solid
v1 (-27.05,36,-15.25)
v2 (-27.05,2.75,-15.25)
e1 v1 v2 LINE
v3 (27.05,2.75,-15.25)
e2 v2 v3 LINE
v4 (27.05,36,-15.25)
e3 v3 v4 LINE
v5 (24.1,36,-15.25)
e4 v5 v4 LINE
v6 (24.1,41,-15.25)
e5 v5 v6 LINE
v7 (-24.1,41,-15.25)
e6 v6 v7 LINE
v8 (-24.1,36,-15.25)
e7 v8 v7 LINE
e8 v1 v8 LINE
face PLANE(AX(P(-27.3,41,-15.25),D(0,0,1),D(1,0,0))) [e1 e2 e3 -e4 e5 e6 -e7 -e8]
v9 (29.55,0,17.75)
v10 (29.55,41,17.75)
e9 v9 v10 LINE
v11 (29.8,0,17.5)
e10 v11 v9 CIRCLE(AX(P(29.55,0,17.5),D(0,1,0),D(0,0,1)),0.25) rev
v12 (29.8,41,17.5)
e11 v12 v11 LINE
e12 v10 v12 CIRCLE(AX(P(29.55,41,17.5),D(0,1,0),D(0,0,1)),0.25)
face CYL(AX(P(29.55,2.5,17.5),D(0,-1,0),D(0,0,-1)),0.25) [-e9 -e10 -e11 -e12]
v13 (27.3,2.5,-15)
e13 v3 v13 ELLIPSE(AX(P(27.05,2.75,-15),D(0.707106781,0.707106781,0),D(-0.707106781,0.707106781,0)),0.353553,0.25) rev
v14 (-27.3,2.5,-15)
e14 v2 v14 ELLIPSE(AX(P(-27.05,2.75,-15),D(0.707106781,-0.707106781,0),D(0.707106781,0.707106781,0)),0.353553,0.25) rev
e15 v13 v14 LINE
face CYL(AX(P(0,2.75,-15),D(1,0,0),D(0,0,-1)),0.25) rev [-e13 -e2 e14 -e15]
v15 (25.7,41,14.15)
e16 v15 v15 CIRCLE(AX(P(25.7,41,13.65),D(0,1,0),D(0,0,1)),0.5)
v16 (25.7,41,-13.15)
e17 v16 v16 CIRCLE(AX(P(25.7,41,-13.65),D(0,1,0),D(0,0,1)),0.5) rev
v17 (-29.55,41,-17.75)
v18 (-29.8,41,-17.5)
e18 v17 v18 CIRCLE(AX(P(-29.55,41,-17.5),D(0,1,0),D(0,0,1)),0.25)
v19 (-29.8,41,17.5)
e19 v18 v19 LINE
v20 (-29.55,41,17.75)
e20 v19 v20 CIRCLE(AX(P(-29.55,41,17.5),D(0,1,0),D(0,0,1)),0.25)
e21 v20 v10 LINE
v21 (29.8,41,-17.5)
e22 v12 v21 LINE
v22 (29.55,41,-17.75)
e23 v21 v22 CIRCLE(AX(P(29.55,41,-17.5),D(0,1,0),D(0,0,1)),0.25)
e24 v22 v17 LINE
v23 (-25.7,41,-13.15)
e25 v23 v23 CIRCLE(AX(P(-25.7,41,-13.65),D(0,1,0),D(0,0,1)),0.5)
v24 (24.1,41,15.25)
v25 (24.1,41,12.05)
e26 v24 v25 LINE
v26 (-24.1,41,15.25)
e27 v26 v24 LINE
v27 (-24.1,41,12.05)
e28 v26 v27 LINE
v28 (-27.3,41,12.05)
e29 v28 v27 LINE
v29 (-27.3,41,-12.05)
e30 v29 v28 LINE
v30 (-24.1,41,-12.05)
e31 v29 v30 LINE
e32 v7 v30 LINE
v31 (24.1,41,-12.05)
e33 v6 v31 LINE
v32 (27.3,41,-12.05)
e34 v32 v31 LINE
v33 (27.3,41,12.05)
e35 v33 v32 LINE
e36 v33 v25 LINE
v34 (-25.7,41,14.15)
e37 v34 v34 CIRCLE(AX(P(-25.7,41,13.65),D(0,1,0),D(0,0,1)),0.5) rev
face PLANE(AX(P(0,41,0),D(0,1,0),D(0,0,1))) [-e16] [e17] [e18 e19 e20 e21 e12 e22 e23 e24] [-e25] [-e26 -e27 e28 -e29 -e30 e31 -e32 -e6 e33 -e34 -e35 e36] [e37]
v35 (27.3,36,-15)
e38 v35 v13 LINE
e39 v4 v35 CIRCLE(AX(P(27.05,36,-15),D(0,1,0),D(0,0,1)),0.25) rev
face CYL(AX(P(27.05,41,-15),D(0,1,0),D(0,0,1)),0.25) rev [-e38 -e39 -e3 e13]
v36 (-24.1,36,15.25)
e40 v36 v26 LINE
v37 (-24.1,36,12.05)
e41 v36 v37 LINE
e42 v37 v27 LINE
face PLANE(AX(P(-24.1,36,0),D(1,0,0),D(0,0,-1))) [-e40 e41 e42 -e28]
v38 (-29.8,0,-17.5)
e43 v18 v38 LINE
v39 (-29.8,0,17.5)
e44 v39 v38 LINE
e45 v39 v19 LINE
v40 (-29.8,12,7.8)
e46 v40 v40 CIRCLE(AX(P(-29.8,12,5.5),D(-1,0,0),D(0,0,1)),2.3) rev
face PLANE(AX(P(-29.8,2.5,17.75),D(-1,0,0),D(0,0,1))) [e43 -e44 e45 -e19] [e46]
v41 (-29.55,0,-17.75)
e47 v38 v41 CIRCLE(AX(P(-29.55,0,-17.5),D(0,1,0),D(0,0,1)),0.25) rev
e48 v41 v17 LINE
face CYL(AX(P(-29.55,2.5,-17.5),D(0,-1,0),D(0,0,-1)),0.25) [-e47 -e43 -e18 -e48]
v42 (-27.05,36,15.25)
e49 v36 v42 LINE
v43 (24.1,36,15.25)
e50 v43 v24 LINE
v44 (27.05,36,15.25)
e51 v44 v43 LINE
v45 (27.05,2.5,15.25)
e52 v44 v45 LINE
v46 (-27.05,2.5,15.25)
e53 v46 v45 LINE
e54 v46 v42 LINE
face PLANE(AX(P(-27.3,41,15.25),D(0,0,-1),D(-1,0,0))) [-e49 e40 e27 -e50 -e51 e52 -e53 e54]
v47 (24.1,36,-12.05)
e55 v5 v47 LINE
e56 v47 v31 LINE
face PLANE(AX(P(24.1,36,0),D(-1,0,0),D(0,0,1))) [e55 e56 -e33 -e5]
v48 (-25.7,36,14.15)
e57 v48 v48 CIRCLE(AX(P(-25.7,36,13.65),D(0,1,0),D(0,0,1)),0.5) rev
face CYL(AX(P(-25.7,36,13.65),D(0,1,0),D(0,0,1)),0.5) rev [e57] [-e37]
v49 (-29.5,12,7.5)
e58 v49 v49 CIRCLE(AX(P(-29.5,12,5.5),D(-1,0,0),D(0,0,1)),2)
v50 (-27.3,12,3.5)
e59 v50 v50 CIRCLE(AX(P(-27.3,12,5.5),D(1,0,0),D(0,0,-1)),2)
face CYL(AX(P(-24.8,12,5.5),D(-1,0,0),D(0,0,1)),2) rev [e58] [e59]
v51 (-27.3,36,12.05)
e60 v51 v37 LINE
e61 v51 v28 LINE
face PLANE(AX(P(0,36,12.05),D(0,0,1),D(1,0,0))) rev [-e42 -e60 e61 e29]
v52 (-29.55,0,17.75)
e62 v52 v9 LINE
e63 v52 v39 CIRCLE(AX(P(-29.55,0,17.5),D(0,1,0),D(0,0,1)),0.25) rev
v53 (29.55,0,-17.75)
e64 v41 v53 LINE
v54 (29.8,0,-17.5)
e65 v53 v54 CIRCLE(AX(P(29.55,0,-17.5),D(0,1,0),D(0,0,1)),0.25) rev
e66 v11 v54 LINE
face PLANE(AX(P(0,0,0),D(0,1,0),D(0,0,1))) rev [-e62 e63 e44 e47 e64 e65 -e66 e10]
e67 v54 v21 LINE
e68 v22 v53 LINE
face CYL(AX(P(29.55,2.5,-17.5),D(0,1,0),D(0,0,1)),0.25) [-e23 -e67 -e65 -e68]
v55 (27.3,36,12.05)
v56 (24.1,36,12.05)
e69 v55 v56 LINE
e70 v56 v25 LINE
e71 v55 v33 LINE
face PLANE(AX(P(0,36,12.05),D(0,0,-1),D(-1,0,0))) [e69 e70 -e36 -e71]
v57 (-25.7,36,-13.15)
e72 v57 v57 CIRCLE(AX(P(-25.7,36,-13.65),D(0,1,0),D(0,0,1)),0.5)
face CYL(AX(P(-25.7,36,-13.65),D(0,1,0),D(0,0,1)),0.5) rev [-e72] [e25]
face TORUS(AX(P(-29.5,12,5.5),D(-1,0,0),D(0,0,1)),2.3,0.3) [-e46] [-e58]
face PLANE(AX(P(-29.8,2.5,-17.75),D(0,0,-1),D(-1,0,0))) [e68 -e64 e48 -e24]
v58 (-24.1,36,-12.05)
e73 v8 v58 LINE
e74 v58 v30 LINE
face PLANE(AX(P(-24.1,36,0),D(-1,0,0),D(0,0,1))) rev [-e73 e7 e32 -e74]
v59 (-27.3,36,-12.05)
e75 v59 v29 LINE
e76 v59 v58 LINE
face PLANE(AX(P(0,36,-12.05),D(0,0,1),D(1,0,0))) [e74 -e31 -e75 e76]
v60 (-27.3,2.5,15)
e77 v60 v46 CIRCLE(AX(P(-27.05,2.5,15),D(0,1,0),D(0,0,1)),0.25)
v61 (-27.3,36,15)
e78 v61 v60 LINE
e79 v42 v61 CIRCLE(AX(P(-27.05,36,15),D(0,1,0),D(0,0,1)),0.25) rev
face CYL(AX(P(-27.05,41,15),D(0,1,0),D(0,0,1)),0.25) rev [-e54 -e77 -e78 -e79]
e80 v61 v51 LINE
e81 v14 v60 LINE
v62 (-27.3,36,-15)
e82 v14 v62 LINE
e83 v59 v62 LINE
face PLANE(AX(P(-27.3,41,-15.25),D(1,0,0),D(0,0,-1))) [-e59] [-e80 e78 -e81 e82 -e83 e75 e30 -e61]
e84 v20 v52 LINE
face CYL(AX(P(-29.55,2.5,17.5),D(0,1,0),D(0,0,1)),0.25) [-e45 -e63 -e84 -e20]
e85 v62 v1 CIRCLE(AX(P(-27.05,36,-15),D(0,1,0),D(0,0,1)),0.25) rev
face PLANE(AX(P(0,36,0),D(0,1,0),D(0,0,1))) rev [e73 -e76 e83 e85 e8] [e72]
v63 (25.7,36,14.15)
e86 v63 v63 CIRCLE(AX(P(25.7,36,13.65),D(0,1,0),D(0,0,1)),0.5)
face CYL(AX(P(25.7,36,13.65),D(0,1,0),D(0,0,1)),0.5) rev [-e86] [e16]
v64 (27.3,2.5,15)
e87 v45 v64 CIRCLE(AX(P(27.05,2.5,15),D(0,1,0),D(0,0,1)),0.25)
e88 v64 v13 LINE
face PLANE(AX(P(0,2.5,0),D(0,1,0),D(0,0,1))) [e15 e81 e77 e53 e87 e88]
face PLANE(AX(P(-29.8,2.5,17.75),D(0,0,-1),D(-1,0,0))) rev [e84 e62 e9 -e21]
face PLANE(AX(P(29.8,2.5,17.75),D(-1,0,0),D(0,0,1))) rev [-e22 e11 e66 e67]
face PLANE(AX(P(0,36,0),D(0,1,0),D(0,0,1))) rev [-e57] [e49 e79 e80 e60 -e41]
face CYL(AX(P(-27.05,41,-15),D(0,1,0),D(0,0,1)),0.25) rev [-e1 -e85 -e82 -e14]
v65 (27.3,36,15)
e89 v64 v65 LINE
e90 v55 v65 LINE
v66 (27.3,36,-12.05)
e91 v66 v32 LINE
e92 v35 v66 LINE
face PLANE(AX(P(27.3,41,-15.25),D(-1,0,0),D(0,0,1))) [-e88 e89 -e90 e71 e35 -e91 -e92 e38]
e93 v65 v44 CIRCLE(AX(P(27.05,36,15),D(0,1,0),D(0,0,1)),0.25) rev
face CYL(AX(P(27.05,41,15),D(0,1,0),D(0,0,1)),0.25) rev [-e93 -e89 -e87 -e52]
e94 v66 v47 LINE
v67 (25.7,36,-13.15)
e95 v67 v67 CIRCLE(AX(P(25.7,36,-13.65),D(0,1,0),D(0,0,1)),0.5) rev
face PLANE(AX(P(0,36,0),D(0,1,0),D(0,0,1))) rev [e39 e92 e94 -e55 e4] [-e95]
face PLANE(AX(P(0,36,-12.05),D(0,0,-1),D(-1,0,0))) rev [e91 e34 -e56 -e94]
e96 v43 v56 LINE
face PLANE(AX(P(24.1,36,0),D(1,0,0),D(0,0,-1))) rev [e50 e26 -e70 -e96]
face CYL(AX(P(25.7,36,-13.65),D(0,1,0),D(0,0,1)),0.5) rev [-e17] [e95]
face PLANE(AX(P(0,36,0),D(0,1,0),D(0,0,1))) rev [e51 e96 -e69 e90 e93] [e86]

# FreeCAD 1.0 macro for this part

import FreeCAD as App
import Part
import Sketcher


def edges_at(feature, points):
    """Names of the edges that pass closest to the given points."""
    edges = feature.Shape.Edges
    near = lambda p: min(range(len(edges)), key=lambda i: edges[i].distToShape(Part.Vertex(*p))[0])
    return sorted({f"Edge{near(p) + 1}" for p in points})


def add_polygon(sketch, points):
    """Adds a closed chain of lines whose ends are joined by coincident constraints."""
    first, n = sketch.GeometryCount, len(points)
    for a, b in zip(points, points[1:] + points[:1]):
        sketch.addGeometry(Part.LineSegment(App.Vector(*a, 0), App.Vector(*b, 0)), False)
    for i in range(n):
        sketch.addConstraint(Sketcher.Constraint("Coincident", first + i, 2, first + (i + 1) % n, 1))

doc = App.newDocument("Part")
body = doc.addObject("PartDesign::Body", "Body")

sketch1 = doc.addObject("Sketcher::SketchObject", "Sketch")
body.addObject(sketch1)
sketch1.AttachmentSupport = (doc.XZ_Plane, [""])
sketch1.MapMode = "FlatFace"
add_polygon(sketch1, [(-30, -18), (-30, 18), (30, 18), (30, -18)])
sketch1.addConstraint(Sketcher.Constraint("Vertical", 0))
sketch1.addConstraint(Sketcher.Constraint("Horizontal", 1))
sketch1.addConstraint(Sketcher.Constraint("Vertical", 2))
sketch1.addConstraint(Sketcher.Constraint("Horizontal", 3))
sketch1.addConstraint(Sketcher.Constraint("Symmetric", 0, 2, 2, 2, -1, 1))
sketch1.addConstraint(Sketcher.Constraint("DistanceX", 1, 1, 1, 2, 59.6))
sketch1.addConstraint(Sketcher.Constraint("DistanceY", 0, 1, 0, 2, 35.5))
pad1 = doc.addObject("PartDesign::Pad", "Pad")
body.addObject(pad1)
pad1.Profile = sketch1
pad1.Length = 2.5
pad1.Reversed = True

sketch2 = doc.addObject("Sketcher::SketchObject", "Sketch001")
body.addObject(sketch2)
sketch2.AttachmentSupport = (doc.XZ_Plane, [""])
sketch2.MapMode = "FlatFace"
sketch2.AttachmentOffset = App.Placement(App.Vector(0, 0, -2.5), App.Rotation())
add_polygon(sketch2, [(-30, -18), (-30, 18), (30, 18), (30, -18)])
add_polygon(sketch2, [(27, 15), (-27, 15), (-27, -15), (27, -15)])
sketch2.addConstraint(Sketcher.Constraint("Vertical", 0))
sketch2.addConstraint(Sketcher.Constraint("Horizontal", 1))
sketch2.addConstraint(Sketcher.Constraint("Vertical", 2))
sketch2.addConstraint(Sketcher.Constraint("Horizontal", 3))
sketch2.addConstraint(Sketcher.Constraint("Horizontal", 4))
sketch2.addConstraint(Sketcher.Constraint("Vertical", 5))
sketch2.addConstraint(Sketcher.Constraint("Horizontal", 6))
sketch2.addConstraint(Sketcher.Constraint("Vertical", 7))
sketch2.addConstraint(Sketcher.Constraint("Symmetric", 0, 2, 2, 2, -1, 1))
sketch2.addConstraint(Sketcher.Constraint("Symmetric", 4, 2, 6, 2, -1, 1))
sketch2.addConstraint(Sketcher.Constraint("DistanceX", 1, 1, 1, 2, 59.6))
sketch2.addConstraint(Sketcher.Constraint("DistanceX", 4, 2, 4, 1, 54.6))
sketch2.addConstraint(Sketcher.Constraint("DistanceY", 0, 1, 0, 2, 35.5))
sketch2.addConstraint(Sketcher.Constraint("DistanceY", 5, 2, 5, 1, 30.5))
pad2 = doc.addObject("PartDesign::Pad", "Pad001")
body.addObject(pad2)
pad2.Profile = sketch2
pad2.Length = 38.5
pad2.Reversed = True

sketch3 = doc.addObject("Sketcher::SketchObject", "Sketch002")
body.addObject(sketch3)
sketch3.AttachmentSupport = (doc.XZ_Plane, [""])
sketch3.MapMode = "FlatFace"
sketch3.AttachmentOffset = App.Placement(App.Vector(0, 0, -41), App.Rotation())
add_polygon(sketch3, [(-27.3, -15.2), (-27.3, -12.1), (-24.1, -12.1), (-24.1, -15.2)])
sketch3.addGeometry(Part.Circle(App.Vector(-25.7, -13.7, 0), App.Vector(0, 0, 1), 0.5), False)
add_polygon(sketch3, [(24.1, -15.2), (24.1, -12.1), (27.3, -12.1), (27.3, -15.2)])
sketch3.addGeometry(Part.Circle(App.Vector(25.7, -13.7, 0), App.Vector(0, 0, 1), 0.5), False)
add_polygon(sketch3, [(24.1, 12.1), (24.1, 15.2), (27.3, 15.2), (27.3, 12.1)])
sketch3.addGeometry(Part.Circle(App.Vector(25.7, 13.7, 0), App.Vector(0, 0, 1), 0.5), False)
add_polygon(sketch3, [(-27.3, 12.1), (-27.3, 15.2), (-24.1, 15.2), (-24.1, 12.1)])
sketch3.addGeometry(Part.Circle(App.Vector(-25.7, 13.7, 0), App.Vector(0, 0, 1), 0.5), False)
sketch3.addConstraint(Sketcher.Constraint("Vertical", 0))
sketch3.addConstraint(Sketcher.Constraint("Horizontal", 1))
sketch3.addConstraint(Sketcher.Constraint("Vertical", 2))
sketch3.addConstraint(Sketcher.Constraint("Horizontal", 3))
sketch3.addConstraint(Sketcher.Constraint("Vertical", 5))
sketch3.addConstraint(Sketcher.Constraint("Horizontal", 6))
sketch3.addConstraint(Sketcher.Constraint("Vertical", 7))
sketch3.addConstraint(Sketcher.Constraint("Horizontal", 8))
sketch3.addConstraint(Sketcher.Constraint("Vertical", 10))
sketch3.addConstraint(Sketcher.Constraint("Horizontal", 11))
sketch3.addConstraint(Sketcher.Constraint("Vertical", 12))
sketch3.addConstraint(Sketcher.Constraint("Horizontal", 13))
sketch3.addConstraint(Sketcher.Constraint("Vertical", 15))
sketch3.addConstraint(Sketcher.Constraint("Horizontal", 16))
sketch3.addConstraint(Sketcher.Constraint("Vertical", 17))
sketch3.addConstraint(Sketcher.Constraint("Horizontal", 18))
sketch3.addConstraint(Sketcher.Constraint("Equal", 4, 9))
sketch3.addConstraint(Sketcher.Constraint("Equal", 9, 14))
sketch3.addConstraint(Sketcher.Constraint("Equal", 14, 19))
sketch3.addConstraint(Sketcher.Constraint("Symmetric", 4, 3, 14, 3, -1, 1))
sketch3.addConstraint(Sketcher.Constraint("Symmetric", 9, 3, 19, 3, -1, 1))
sketch3.addConstraint(Sketcher.Constraint("Symmetric", 2, 2, 10, 2, -1, 1))
sketch3.addConstraint(Sketcher.Constraint("Symmetric", 0, 2, 12, 2, -1, 1))
sketch3.addConstraint(Sketcher.Constraint("Symmetric", 7, 2, 15, 2, -1, 1))
sketch3.addConstraint(Sketcher.Constraint("Symmetric", 5, 2, 17, 2, -1, 1))
sketch3.addConstraint(Sketcher.Constraint("Symmetric", 4, 3, 9, 3, -2))
sketch3.addConstraint(Sketcher.Constraint("Symmetric", 1, 2, 5, 2, -2))
sketch3.addConstraint(Sketcher.Constraint("Symmetric", 3, 2, 7, 2, -2))
sketch3.addConstraint(Sketcher.Constraint("Equal", 18, 0))
sketch3.addConstraint(Sketcher.Constraint("Diameter", 4, 1.0))
sketch3.addConstraint(Sketcher.Constraint("DistanceX", 1, 1, 1, 2, 3.2))
sketch3.addConstraint(Sketcher.Constraint("DistanceX", 0, 2, 9, 3, 53.0))
sketch3.addConstraint(Sketcher.Constraint("DistanceX", 4, 3, -1, 1, 25.7))
sketch3.addConstraint(Sketcher.Constraint("DistanceY", 9, 3, 14, 3, 27.3))
sketch3.addConstraint(Sketcher.Constraint("DistanceY", 4, 3, 0, 2, 1.6))
pad3 = doc.addObject("PartDesign::Pad", "Pad002")
body.addObject(pad3)
pad3.Profile = sketch3
pad3.Length = 5
doc.recompute()

fillet = doc.addObject("PartDesign::Fillet", "Fillet")
body.addObject(fillet)
fillet.Base = (pad3, edges_at(pad3, [
    (-29.8, 20.5, -17.75),
    (-29.8, 20.5, 17.75),
    (29.8, 20.5, 17.75),
    (29.8, 20.5, -17.75),
]))
fillet.Radius = 0.25
doc.recompute()

fillet2 = doc.addObject("PartDesign::Fillet", "Fillet001")
body.addObject(fillet2)
fillet2.Base = (fillet, edges_at(fillet, [
    (0, 2.5, -15.25),
    (-27.3, 19.25, -15.25),
    (27.3, 19.25, -15.25),
    (27.3, 19.25, 15.25),
    (-27.3, 19.25, 15.25),
]))
fillet2.Radius = 0.25

sketch4 = doc.addObject("Sketcher::SketchObject", "Sketch003")
body.addObject(sketch4)
sketch4.AttachmentSupport = (doc.YZ_Plane, [""])
sketch4.MapMode = "FlatFace"
sketch4.AttachmentOffset = App.Placement(App.Vector(0, 0, -29.8), App.Rotation())
sketch4.addGeometry(Part.Circle(App.Vector(12, 5.5, 0), App.Vector(0, 0, 1), 2), False)
sketch4.addConstraint(Sketcher.Constraint("Diameter", 0, 4.0))
sketch4.addConstraint(Sketcher.Constraint("DistanceX", -1, 1, 0, 3, 12.0))
sketch4.addConstraint(Sketcher.Constraint("DistanceY", -1, 1, 0, 3, 5.5))
pocket1 = doc.addObject("PartDesign::Pocket", "Pocket")
body.addObject(pocket1)
pocket1.Profile = sketch4
pocket1.Length = 5
pocket1.Reversed = True
doc.recompute()

fillet3 = doc.addObject("PartDesign::Fillet", "Fillet002")
body.addObject(fillet3)
fillet3.Base = (pocket1, edges_at(pocket1, [(-29.8, 12, 3.5)]))
fillet3.Radius = 0.3

doc.recompute()
